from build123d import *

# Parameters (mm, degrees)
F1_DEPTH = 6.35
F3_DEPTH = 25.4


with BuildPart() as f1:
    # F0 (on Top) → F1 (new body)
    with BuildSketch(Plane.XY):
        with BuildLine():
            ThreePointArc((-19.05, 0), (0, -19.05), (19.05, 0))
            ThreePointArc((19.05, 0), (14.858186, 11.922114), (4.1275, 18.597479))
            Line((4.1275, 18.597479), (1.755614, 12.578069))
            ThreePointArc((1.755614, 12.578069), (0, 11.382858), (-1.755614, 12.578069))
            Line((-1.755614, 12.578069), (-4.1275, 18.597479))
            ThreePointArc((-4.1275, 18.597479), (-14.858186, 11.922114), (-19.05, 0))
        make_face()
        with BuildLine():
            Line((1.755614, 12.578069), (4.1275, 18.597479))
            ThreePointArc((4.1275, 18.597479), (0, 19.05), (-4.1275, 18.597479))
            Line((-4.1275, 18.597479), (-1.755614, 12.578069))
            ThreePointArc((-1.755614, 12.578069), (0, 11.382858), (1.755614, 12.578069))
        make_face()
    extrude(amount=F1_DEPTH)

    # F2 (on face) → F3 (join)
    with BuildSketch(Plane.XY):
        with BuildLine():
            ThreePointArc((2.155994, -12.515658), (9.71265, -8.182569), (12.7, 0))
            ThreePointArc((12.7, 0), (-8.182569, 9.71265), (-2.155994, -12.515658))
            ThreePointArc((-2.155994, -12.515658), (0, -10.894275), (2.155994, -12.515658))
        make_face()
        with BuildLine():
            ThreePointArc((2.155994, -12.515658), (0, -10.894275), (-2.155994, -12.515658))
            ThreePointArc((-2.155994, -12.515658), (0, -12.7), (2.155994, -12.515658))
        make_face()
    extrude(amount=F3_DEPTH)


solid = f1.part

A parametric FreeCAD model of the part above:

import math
import FreeCAD as App
import Part
import Sketcher
Q = App.Units.Quantity

doc = App.newDocument("Part")
body = doc.addObject("PartDesign::Body", "Body")

# Sketch on XY plane
sketch1 = doc.addObject("Sketcher::SketchObject", "Sketch")
body.addObject(sketch1)
sketch1.AttachmentSupport = (doc.XY_Plane, [""])
sketch1.MapMode = "FlatFace"
sketch1.addGeometry(Part.ArcOfCircle(Part.Circle(App.Vector(0, 0, 0), App.Vector(0, 0, 1), 19.05), math.radians(180), math.radians(360)), False)
sketch1.addGeometry(Part.ArcOfCircle(Part.Circle(App.Vector(0, 0, 0), App.Vector(0, 0, 1), 19.05), math.radians(0), math.radians(77.486676)), False)
sketch1.addGeometry(Part.ArcOfCircle(Part.Circle(App.Vector(0, 0.000021, 0), App.Vector(0, 0, 1), 19.049979), math.radians(77.486661), math.radians(102.513339)), False)
sketch1.addGeometry(Part.ArcOfCircle(Part.Circle(App.Vector(0, 0, 0), App.Vector(0, 0, 1), 19.05), math.radians(102.513324), math.radians(180)), False)
sketch1.addConstraint(Sketcher.Constraint("Coincident", 0, 2, 1, 1))
sketch1.addConstraint(Sketcher.Constraint("Coincident", 1, 2, 2, 1))
sketch1.addConstraint(Sketcher.Constraint("Coincident", 2, 2, 3, 1))
sketch1.addConstraint(Sketcher.Constraint("Coincident", 3, 2, 0, 1))
sketch1.addConstraint(Sketcher.Constraint("Coincident", 0, 3, -1, 1))
sketch1.addConstraint(Sketcher.Constraint("Coincident", 1, 3, -1, 1))
sketch1.addConstraint(Sketcher.Constraint("Coincident", 3, 3, -1, 1))
sketch1.addConstraint(Sketcher.Constraint("PointOnObject", 0, 2, -1))
sketch1.addConstraint(Sketcher.Constraint("PointOnObject", 3, 2, -1))
sketch1.addConstraint(Sketcher.Constraint("Radius", 0, Q("0.75 in")))
sketch1.addConstraint(Sketcher.Constraint("Radius", 2, Q("19.049979 mm")))
sketch1.addConstraint(Sketcher.Constraint("DistanceX", 2, 2, 1, 2, Q("0.325 in")))
sketch1.addConstraint(Sketcher.Constraint("DistanceX", -1, 1, 1, 2, Q("0.1625 in")))
pad1 = doc.addObject("PartDesign::Pad", "Pad")
body.addObject(pad1)
pad1.Profile = sketch1
pad1.Length = Q("0.25 in")

# Sketch on XY plane
sketch2 = doc.addObject("Sketcher::SketchObject", "Sketch001")
body.addObject(sketch2)
sketch2.AttachmentSupport = (doc.XY_Plane, [""])
sketch2.MapMode = "FlatFace"
sketch2.addGeometry(Part.ArcOfCircle(Part.Circle(App.Vector(0, 0, 0), App.Vector(0, 0, 1), 12.7), math.radians(-80.225943), math.radians(0.000002)), False)
sketch2.addGeometry(Part.ArcOfCircle(Part.Circle(App.Vector(0, 0, 0), App.Vector(0, 0, 1), 12.7), math.radians(0), math.radians(260.225943)), False)
sketch2.addGeometry(Part.ArcOfCircle(Part.Circle(App.Vector(0, 0.000014, 0), App.Vector(0, 0, 1), 12.700014), math.radians(-99.774046), math.radians(-80.225954)), False)
sketch2.addConstraint(Sketcher.Constraint("Tangent", 0, 2, 1, 1))
sketch2.addConstraint(Sketcher.Constraint("Tangent", 1, 2, 2, 1))
sketch2.addConstraint(Sketcher.Constraint("Tangent", 2, 2, 0, 1))
sketch2.addConstraint(Sketcher.Constraint("Coincident", 0, 3, -1, 1))
sketch2.addConstraint(Sketcher.Constraint("PointOnObject", 0, 2, -1))
sketch2.addConstraint(Sketcher.Constraint("Horizontal", 1, 2, 2, 2))
sketch2.addConstraint(Sketcher.Constraint("Radius", 0, Q("0.5 in")))
sketch2.addConstraint(Sketcher.Constraint("DistanceX", 1, 2, -1, 1, Q("2.155994 mm")))
pad2 = doc.addObject("PartDesign::Pad", "Pad001")
body.addObject(pad2)
pad2.Profile = sketch2
pad2.Length = Q("1 in")

doc.recompute()
